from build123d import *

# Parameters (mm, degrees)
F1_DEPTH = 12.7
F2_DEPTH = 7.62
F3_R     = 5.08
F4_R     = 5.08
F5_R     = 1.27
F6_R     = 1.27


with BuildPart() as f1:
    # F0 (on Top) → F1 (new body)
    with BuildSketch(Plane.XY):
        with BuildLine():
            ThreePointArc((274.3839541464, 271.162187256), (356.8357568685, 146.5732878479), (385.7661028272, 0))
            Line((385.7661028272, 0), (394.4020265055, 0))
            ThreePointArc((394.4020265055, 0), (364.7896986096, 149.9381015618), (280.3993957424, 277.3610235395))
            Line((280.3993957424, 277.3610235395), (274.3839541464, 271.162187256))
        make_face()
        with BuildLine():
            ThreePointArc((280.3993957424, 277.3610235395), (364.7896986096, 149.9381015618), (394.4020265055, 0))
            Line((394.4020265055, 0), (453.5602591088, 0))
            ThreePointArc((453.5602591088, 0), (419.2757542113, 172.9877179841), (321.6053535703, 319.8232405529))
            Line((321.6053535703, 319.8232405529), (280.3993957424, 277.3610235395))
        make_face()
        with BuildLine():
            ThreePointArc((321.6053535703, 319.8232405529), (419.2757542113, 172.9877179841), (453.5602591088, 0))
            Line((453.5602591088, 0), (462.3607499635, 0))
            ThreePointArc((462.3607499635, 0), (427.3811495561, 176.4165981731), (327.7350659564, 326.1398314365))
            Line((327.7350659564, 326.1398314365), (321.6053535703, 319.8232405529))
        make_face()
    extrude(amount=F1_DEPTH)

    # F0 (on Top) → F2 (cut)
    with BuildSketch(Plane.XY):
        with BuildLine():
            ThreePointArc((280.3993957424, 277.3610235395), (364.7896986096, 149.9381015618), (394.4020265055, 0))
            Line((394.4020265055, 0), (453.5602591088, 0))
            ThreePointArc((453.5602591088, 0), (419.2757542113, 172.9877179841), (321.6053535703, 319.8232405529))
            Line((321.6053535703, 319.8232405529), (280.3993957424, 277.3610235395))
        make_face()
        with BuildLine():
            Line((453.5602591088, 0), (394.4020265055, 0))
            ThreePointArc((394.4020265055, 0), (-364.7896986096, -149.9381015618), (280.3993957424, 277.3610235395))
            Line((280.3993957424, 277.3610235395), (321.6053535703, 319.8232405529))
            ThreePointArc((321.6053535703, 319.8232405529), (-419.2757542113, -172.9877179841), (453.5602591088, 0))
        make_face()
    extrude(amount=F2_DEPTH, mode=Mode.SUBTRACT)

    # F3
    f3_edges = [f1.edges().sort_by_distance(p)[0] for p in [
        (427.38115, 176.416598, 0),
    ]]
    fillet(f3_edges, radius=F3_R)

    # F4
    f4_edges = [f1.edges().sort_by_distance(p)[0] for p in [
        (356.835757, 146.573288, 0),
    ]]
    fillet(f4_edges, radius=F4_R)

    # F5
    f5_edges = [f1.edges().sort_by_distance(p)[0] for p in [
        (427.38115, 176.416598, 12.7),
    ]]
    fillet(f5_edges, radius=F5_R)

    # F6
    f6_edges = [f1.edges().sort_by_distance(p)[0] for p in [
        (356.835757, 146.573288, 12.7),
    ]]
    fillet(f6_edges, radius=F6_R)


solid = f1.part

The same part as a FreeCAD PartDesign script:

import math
import FreeCAD as App
import Part
import Sketcher

V = App.Vector
Q = App.Units.Quantity


def edges_at(feature, points):
    """Names of the edges that pass closest to the given points."""
    edges = feature.Shape.Edges
    near = lambda p: min(range(len(edges)), key=lambda i: edges[i].distToShape(Part.Vertex(*p))[0])
    return sorted({f"Edge{near(p) + 1}" for p in points})

doc = App.newDocument("Part")
body = doc.addObject("PartDesign::Body", "Body")

sketch1 = doc.addObject("Sketcher::SketchObject", "Sketch")
body.addObject(sketch1)
sketch1.AttachmentSupport = (doc.XY_Plane, [""])
sketch1.MapMode = "FlatFace"
sketch1.addGeometry([
    Part.ArcOfCircle(Part.Circle(V(0, 0, 0), V(0, 0, 1), 385.766103), math.radians(0), math.radians(44.661639)),
    Part.LineSegment(V(385.766103, 0, 0), V(462.36075, 0, 0)),
    Part.ArcOfCircle(Part.Circle(V(0, 0, 0), V(0, 0, 1), 462.36075), math.radians(0), math.radians(44.860218)),
    Part.LineSegment(V(327.735066, 326.139831, 0), V(321.605354, 319.823241, 0)),
    Part.LineSegment(V(321.605354, 319.823241, 0), V(280.399396, 277.361024, 0)),
    Part.LineSegment(V(280.399396, 277.361024, 0), V(274.383954, 271.162187, 0)),
], False)
sketch1.addConstraint([
    Sketcher.Constraint("Coincident", 0, 1, 1, 1),
    Sketcher.Constraint("Coincident", 1, 2, 2, 1),
    Sketcher.Constraint("Coincident", 2, 2, 3, 1),
    Sketcher.Constraint("Coincident", 3, 2, 4, 1),
    Sketcher.Constraint("Coincident", 4, 2, 5, 1),
    Sketcher.Constraint("Coincident", 5, 2, 0, 2),
    Sketcher.Constraint("Horizontal", 1),
    Sketcher.Constraint("Coincident", 0, 3, -1, 1),
    Sketcher.Constraint("Coincident", 2, 3, -1, 1),
    Sketcher.Constraint("PointOnObject", 1, 2, -1),
    Sketcher.Constraint("Parallel", 3, 4),
    Sketcher.Constraint("Parallel", 4, 5),
    Sketcher.Constraint("Radius", 2, Q("462.36075 mm")),
    Sketcher.Constraint("Radius", 0, Q("385.766103 mm")),
    Sketcher.Constraint("DistanceX", 5, 2, 3, 2, Q("47.221399 mm")),
    Sketcher.Constraint("DistanceY", -1, 1, 3, 2, Q("319.823241 mm")),
    Sketcher.Constraint("DistanceX", 3, 2, 0, 1, Q("64.160749 mm")),
    Sketcher.Constraint("DistanceX", 5, 2, 4, 2, Q("6.015442 mm")),
])
pad1 = doc.addObject("PartDesign::Pad", "Pad")
body.addObject(pad1)
pad1.Profile = sketch1
pad1.Length = Q("0.5 in")

sketch2 = doc.addObject("Sketcher::SketchObject", "Sketch001")
body.addObject(sketch2)
sketch2.AttachmentSupport = (doc.XY_Plane, [""])
sketch2.MapMode = "FlatFace"
sketch2.addGeometry([
    Part.Circle(V(0, 0, 0), V(0, 0, 1), 453.560259),
    Part.Circle(V(0, 0, 0), V(0, 0, 1), 394.402027),
], False)
sketch2.addConstraint([
    Sketcher.Constraint("Coincident", 0, 3, -1, 1),
    Sketcher.Constraint("Coincident", 1, 3, -1, 1),
    Sketcher.Constraint("Diameter", 0, Q("907.120518 mm")),
    Sketcher.Constraint("Diameter", 1, Q("788.804053 mm")),
])
pocket1 = doc.addObject("PartDesign::Pocket", "Pocket")
body.addObject(pocket1)
pocket1.Profile = sketch2
pocket1.Length = Q("0.3 in")
pocket1.Reversed = True
doc.recompute()

fillet = doc.addObject("PartDesign::Fillet", "Fillet")
body.addObject(fillet)
fillet.Base = (pocket1, edges_at(pocket1, [(427.381, 176.417, 0)]))
fillet.Radius = Q("0.2 in")
doc.recompute()

fillet2 = doc.addObject("PartDesign::Fillet", "Fillet001")
body.addObject(fillet2)
fillet2.Base = (fillet, edges_at(fillet, [(356.836, 146.573, 0)]))
fillet2.Radius = Q("0.2 in")
doc.recompute()

fillet3 = doc.addObject("PartDesign::Fillet", "Fillet002")
body.addObject(fillet3)
fillet3.Base = (fillet2, edges_at(fillet2, [(427.381, 176.417, 12.7)]))
fillet3.Radius = Q("0.05 in")
doc.recompute()

fillet4 = doc.addObject("PartDesign::Fillet", "Fillet003")
body.addObject(fillet4)
fillet4.Base = (fillet3, edges_at(fillet3, [(356.836, 146.573, 12.7)]))
fillet4.Radius = Q("0.05 in")

doc.recompute()
